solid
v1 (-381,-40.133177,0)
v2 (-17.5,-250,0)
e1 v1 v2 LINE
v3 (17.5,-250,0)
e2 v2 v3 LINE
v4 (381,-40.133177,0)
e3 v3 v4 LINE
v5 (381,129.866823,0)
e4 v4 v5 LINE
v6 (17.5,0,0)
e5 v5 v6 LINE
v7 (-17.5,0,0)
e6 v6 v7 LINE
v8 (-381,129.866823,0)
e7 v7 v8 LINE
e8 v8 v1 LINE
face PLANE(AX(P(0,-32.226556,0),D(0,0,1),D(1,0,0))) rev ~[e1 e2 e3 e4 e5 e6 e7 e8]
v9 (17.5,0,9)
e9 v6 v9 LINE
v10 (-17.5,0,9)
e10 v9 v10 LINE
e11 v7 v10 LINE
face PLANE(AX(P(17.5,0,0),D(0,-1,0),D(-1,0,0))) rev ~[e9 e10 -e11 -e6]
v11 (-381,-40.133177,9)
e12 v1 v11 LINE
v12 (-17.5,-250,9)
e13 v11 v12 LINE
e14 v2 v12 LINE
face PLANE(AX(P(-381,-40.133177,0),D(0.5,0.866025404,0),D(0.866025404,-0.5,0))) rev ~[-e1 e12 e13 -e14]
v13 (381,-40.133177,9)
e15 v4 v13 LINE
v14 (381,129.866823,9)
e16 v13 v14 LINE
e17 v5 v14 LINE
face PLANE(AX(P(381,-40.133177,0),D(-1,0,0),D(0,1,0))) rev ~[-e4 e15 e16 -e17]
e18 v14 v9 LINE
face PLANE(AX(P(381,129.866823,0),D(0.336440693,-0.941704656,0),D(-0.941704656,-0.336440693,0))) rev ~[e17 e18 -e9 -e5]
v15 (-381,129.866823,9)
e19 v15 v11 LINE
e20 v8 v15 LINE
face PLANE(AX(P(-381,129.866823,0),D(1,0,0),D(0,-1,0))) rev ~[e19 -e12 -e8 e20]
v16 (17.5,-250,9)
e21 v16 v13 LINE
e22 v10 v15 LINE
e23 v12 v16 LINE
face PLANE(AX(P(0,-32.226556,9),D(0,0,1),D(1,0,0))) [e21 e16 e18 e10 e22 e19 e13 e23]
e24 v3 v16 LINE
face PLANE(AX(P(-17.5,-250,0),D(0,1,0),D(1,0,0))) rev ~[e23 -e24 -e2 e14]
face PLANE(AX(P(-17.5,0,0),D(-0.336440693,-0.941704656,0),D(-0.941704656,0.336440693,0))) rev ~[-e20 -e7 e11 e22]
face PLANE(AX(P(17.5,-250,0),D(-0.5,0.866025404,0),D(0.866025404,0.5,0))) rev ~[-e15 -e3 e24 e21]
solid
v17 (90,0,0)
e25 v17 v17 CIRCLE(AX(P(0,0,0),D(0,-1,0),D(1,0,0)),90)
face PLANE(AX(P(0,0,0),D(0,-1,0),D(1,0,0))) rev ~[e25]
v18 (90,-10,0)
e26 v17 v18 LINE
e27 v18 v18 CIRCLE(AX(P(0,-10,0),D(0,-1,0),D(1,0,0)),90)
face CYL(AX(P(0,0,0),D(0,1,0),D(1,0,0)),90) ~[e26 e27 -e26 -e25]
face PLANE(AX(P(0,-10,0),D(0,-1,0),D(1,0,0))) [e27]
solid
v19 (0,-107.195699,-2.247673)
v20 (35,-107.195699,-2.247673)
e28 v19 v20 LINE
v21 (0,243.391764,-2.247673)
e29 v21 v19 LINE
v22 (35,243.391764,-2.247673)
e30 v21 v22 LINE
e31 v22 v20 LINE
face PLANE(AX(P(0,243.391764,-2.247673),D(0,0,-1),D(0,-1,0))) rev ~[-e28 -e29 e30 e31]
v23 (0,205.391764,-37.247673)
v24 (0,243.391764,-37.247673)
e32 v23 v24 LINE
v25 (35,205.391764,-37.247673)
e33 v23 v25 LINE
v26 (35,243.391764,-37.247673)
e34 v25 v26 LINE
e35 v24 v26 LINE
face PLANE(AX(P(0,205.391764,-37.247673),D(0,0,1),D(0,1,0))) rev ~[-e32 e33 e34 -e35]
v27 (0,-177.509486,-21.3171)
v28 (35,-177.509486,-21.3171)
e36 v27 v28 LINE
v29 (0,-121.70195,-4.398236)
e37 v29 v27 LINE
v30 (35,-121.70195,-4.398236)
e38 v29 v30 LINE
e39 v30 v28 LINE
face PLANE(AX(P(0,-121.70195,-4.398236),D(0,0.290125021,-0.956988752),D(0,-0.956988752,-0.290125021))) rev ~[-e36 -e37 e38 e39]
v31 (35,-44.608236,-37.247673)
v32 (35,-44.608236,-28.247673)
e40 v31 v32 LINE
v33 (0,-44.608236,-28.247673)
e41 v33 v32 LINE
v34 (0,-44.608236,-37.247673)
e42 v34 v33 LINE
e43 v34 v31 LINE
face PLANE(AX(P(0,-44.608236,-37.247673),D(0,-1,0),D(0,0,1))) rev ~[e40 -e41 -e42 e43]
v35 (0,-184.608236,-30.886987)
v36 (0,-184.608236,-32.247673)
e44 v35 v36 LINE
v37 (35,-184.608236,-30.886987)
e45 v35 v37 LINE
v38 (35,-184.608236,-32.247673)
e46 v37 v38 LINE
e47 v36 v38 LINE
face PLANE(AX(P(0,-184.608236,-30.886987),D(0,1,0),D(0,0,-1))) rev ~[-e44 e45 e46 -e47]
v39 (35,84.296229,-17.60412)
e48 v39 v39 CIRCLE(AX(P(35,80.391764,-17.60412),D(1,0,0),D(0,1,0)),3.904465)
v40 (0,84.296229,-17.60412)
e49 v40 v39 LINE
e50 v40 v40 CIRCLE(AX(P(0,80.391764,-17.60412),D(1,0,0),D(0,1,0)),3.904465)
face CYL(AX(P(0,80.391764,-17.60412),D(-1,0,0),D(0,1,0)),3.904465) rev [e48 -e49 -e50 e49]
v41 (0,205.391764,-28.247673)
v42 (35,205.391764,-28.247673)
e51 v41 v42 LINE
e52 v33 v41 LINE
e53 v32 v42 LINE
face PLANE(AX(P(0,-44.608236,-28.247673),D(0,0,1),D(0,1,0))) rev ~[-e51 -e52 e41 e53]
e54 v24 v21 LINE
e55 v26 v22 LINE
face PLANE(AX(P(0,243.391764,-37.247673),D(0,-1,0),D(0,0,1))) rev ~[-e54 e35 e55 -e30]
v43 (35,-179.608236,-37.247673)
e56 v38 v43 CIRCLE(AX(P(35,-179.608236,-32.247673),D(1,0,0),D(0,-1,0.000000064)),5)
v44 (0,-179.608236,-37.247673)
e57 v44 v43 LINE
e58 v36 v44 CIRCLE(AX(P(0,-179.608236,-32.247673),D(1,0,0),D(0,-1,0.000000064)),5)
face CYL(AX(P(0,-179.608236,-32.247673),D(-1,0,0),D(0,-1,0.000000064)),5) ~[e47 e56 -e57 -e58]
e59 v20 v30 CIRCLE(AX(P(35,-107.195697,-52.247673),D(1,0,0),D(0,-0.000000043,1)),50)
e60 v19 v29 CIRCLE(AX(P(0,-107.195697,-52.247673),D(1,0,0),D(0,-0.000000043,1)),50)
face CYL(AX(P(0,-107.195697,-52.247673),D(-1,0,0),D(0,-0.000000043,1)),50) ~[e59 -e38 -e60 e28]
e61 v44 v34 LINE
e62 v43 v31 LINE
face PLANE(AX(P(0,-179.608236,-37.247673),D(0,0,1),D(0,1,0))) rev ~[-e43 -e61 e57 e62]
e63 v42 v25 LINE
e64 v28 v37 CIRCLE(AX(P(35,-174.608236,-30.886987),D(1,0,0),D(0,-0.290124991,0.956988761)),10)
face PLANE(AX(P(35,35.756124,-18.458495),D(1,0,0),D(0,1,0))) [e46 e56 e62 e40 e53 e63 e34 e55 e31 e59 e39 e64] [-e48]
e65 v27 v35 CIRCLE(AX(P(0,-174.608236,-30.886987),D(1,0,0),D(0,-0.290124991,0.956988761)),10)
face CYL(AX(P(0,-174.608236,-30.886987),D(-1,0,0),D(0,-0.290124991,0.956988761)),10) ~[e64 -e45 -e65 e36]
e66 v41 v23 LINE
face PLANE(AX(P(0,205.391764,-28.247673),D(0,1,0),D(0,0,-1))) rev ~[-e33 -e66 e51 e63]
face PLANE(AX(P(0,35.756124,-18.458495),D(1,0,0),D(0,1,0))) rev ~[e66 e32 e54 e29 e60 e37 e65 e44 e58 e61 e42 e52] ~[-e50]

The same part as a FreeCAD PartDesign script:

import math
import FreeCAD as App
import Part
import Sketcher
Q = App.Units.Quantity


def add_polygon(sketch, points):
    """Adds a closed chain of lines whose ends are joined by coincident constraints."""
    first, n = sketch.GeometryCount, len(points)
    for a, b in zip(points, points[1:] + points[:1]):
        sketch.addGeometry(Part.LineSegment(App.Vector(*a, 0), App.Vector(*b, 0)), False)
    for i in range(n):
        sketch.addConstraint(Sketcher.Constraint("Coincident", first + i, 2, first + (i + 1) % n, 1))

doc = App.newDocument("Part")
body = doc.addObject("PartDesign::Body", "Body")

# Sketch on XY plane
sketch1 = body.newObject("Sketcher::SketchObject", "Sketch")
sketch1.AttachmentSupport = (doc.getObject("XY_Plane"), [""])
sketch1.MapMode = "FlatFace"
add_polygon(sketch1, [(-17.5, 0), (-381, 129.866823), (-381, -40.133177), (-17.5, -250), (17.5, -250), (381, -40.133177), (381, 129.866823), (17.5, 0)])  # lines 0-7
sketch1.addConstraint([
    Sketcher.Constraint("Vertical", 1),
    Sketcher.Constraint("Horizontal", 3),
    Sketcher.Constraint("Vertical", 5),
    Sketcher.Constraint("Horizontal", 7),
    Sketcher.Constraint("Symmetric", 6, 2, 7, 2, -1, 1),
    Sketcher.Constraint("Symmetric", 1, 2, 4, 2, -2),
    Sketcher.Constraint("Horizontal", 0, 2, 5, 2),
    Sketcher.Constraint("Vertical", 3, 2, 6, 2),
    Sketcher.Constraint("Vertical", 2, 2, 7, 2),
    Sketcher.Constraint("DistanceX", 3, 1, 3, 2, 35.0),
    Sketcher.Constraint("DistanceY", 1, 2, 1, 1, 170.0),
    Sketcher.Constraint("Angle", 2, Q("-30 deg")),
    Sketcher.Constraint("DistanceX", 0, 2, -1, 1, 381.0),
    Sketcher.Constraint("DistanceY", 2, 2, -1, 1, 250.0),
])
pad1 = body.newObject("PartDesign::Pad", "Pad")
pad1.Profile = sketch1
pad1.Length = 9
body2 = doc.addObject("PartDesign::Body", "Body001")

# Sketch on XZ plane
sketch2 = body2.newObject("Sketcher::SketchObject", "Sketch001")
sketch2.AttachmentSupport = (doc.getObject("XZ_Plane001"), [""])
sketch2.MapMode = "FlatFace"
sketch2.addGeometry(Part.Circle(App.Vector(0, 0, 0), App.Vector(0, 0, 1), 90), False)
sketch2.addConstraint([
    Sketcher.Constraint("Coincident", 0, 3, -1, 1),
    Sketcher.Constraint("Diameter", 0, 180.0),
])
pad2 = body2.newObject("PartDesign::Pad", "Pad001")
pad2.Profile = sketch2
pad2.Length = 10
body3 = doc.addObject("PartDesign::Body", "Body002")

# Sketch on YZ plane
sketch3 = body3.newObject("Sketcher::SketchObject", "Sketch002")
sketch3.AttachmentSupport = (doc.getObject("YZ_Plane002"), [""])
sketch3.MapMode = "FlatFace"
sketch3.addGeometry([
    Part.LineSegment(App.Vector(-44.608236, -37.247673, 0), App.Vector(-44.608236, -28.247673, 0)),  # 0
    Part.LineSegment(App.Vector(-44.608236, -28.247673, 0), App.Vector(205.391764, -28.247673, 0)),  # 1
    Part.LineSegment(App.Vector(205.391764, -28.247673, 0), App.Vector(205.391764, -37.247673, 0)),  # 2
    Part.LineSegment(App.Vector(205.391764, -37.247673, 0), App.Vector(243.391764, -37.247673, 0)),  # 3
    Part.LineSegment(App.Vector(243.391764, -37.247673, 0), App.Vector(243.391764, -2.247673, 0)),  # 4
    Part.LineSegment(App.Vector(243.391764, -2.247673, 0), App.Vector(-107.195699, -2.247673, 0)),  # 5
    Part.ArcOfCircle(Part.Circle(App.Vector(-107.195697, -52.247673, 0), App.Vector(0, 0, 1), 50), math.radians(90.000002), math.radians(106.865443)),  # 6
    Part.LineSegment(App.Vector(-121.70195, -4.398236, 0), App.Vector(-177.509486, -21.3171, 0)),  # 7
    Part.ArcOfCircle(Part.Circle(App.Vector(-174.608236, -30.886987, 0), App.Vector(0, 0, 1), 10), math.radians(106.865439), math.radians(179.999997)),  # 8
    Part.LineSegment(App.Vector(-184.608236, -30.886987, 0), App.Vector(-184.608236, -32.247673, 0)),  # 9
    Part.ArcOfCircle(Part.Circle(App.Vector(-179.608236, -32.247673, 0), App.Vector(0, 0, 1), 5), math.radians(179.999996), math.radians(270.000004)),  # 10
    Part.LineSegment(App.Vector(-179.608236, -37.247673, 0), App.Vector(-44.608236, -37.247673, 0)),  # 11
    Part.Circle(App.Vector(80.391764, -17.60412, 0), App.Vector(0, 0, 1), 3.904465),  # 12
], False)
sketch3.addConstraint([
    Sketcher.Constraint("Coincident", 0, 2, 1, 1),
    Sketcher.Constraint("Coincident", 1, 2, 2, 1),
    Sketcher.Constraint("Coincident", 2, 2, 3, 1),
    Sketcher.Constraint("Coincident", 3, 2, 4, 1),
    Sketcher.Constraint("Coincident", 4, 2, 5, 1),
    Sketcher.Constraint("Tangent", 5, 2, 6, 1),
    Sketcher.Constraint("Tangent", 6, 2, 7, 1),
    Sketcher.Constraint("Tangent", 7, 2, 8, 1),
    Sketcher.Constraint("Tangent", 8, 2, 9, 1),
    Sketcher.Constraint("Tangent", 9, 2, 10, 1),
    Sketcher.Constraint("Tangent", 10, 2, 11, 1),
    Sketcher.Constraint("Coincident", 11, 2, 0, 1),
    Sketcher.Constraint("Vertical", 0),
    Sketcher.Constraint("Horizontal", 1),
    Sketcher.Constraint("Vertical", 2),
    Sketcher.Constraint("Horizontal", 3),
    Sketcher.Constraint("Vertical", 4),
    Sketcher.Constraint("Horizontal", 5),
    Sketcher.Constraint("Vertical", 9),
    Sketcher.Constraint("Horizontal", 11),
    Sketcher.Constraint("Horizontal", 3, 2, 10, 2),
    Sketcher.Constraint("Radius", 6, 50.0),
    Sketcher.Constraint("Radius", 8, 10.0),
    Sketcher.Constraint("Radius", 10, 5.0),
    Sketcher.Constraint("DistanceX", 1, 1, 1, 2, 250.0),
    Sketcher.Constraint("DistanceX", 3, 1, 3, 2, 38.0),
    Sketcher.Constraint("DistanceX", 11, 1, 11, 2, 135.0),
    Sketcher.Constraint("DistanceY", 0, 1, 0, 2, 9.0),
    Sketcher.Constraint("DistanceY", 4, 1, 4, 2, 35.0),
    Sketcher.Constraint("DistanceX", 8, 3, 12, 3, 255.0),
    Sketcher.Constraint("Diameter", 12, 7.80893),
    Sketcher.Constraint("DistanceX", 5, 2, -1, 1, 107.195699),
    Sketcher.Constraint("DistanceY", 7, 2, -1, 1, 21.3171),
    Sketcher.Constraint("Distance", 7, 58.31577),
    Sketcher.Constraint("DistanceX", 5, 2, 5, 1, 350.587463),
    Sketcher.Constraint("DistanceY", 12, 3, -1, 1, 17.60412),
])
pad3 = body3.newObject("PartDesign::Pad", "Pad002")
pad3.Profile = sketch3
pad3.Length = 35

doc.recompute()
